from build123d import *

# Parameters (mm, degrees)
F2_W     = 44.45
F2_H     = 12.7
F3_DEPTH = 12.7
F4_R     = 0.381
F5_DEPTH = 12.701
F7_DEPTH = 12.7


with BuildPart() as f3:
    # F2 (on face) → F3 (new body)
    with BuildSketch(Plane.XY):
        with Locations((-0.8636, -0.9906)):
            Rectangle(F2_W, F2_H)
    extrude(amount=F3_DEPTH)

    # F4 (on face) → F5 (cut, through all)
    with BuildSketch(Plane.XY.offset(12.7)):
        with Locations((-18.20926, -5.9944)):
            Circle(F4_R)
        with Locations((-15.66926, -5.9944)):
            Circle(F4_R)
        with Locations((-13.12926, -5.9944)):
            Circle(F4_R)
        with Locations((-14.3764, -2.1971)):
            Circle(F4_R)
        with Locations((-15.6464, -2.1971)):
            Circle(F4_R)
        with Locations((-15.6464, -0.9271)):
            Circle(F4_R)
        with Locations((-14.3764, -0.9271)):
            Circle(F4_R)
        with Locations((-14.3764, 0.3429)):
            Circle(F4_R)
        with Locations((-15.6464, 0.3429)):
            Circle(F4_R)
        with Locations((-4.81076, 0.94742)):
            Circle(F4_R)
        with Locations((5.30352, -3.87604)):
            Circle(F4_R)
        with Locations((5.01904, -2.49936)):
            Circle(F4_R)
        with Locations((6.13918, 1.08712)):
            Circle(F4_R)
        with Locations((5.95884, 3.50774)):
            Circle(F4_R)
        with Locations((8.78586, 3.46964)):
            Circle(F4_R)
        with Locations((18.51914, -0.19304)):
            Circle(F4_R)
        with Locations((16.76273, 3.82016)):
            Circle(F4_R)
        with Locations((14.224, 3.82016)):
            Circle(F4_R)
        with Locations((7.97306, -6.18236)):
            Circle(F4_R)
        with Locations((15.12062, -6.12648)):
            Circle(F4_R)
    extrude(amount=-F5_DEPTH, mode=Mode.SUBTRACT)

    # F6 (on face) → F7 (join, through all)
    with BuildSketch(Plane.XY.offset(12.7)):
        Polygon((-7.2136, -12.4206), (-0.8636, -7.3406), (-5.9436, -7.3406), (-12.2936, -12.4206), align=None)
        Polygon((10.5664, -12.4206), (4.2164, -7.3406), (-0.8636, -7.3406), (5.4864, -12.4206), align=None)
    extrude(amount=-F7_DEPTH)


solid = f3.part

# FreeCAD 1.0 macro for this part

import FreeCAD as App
import Part
import Sketcher
from FreeCAD import Vector
Q = App.Units.Quantity


def add_polygon(sketch, points):
    """Adds a closed chain of lines whose ends are joined by coincident constraints."""
    first, n = sketch.GeometryCount, len(points)
    for a, b in zip(points, points[1:] + points[:1]):
        sketch.addGeometry(Part.LineSegment(App.Vector(*a, 0), App.Vector(*b, 0)), False)
    for i in range(n):
        sketch.addConstraint(Sketcher.Constraint("Coincident", first + i, 2, first + (i + 1) % n, 1))

doc = App.newDocument("Part")
body = doc.addObject("PartDesign::Body", "Body")

# Sketch on XY plane
sketch1 = body.newObject("Sketcher::SketchObject", "Sketch")
sketch1.AttachmentSupport = (doc.getObject("XY_Plane"), [""])
sketch1.MapMode = "FlatFace"
add_polygon(sketch1, [(-23, 5), (-23, -7), (21, -7), (21, 5)])  # lines 0-3
sketch1.addConstraint(Sketcher.Constraint("Vertical", 0))
sketch1.addConstraint(Sketcher.Constraint("Horizontal", 1))
sketch1.addConstraint(Sketcher.Constraint("Vertical", 2))
sketch1.addConstraint(Sketcher.Constraint("Horizontal", 3))
sketch1.addConstraint(Sketcher.Constraint("DistanceY", 0, 2, 0, 1, Q("0.5 in")))
sketch1.addConstraint(Sketcher.Constraint("DistanceX", 1, 1, 1, 2, Q("1.75 in")))
sketch1.addConstraint(Sketcher.Constraint("DistanceX", 0, 2, -1, 1, Q("0.909 in")))
sketch1.addConstraint(Sketcher.Constraint("DistanceY", 0, 2, -1, 1, Q("0.289 in")))
pad1 = body.newObject("PartDesign::Pad", "Pad")
pad1.Profile = sketch1
pad1.Length = Q("0.5 in")

# Sketch on XY plane
sketch2 = body.newObject("Sketcher::SketchObject", "Sketch001")
sketch2.AttachmentSupport = (doc.getObject("XY_Plane"), [""])
sketch2.MapMode = "FlatFace"
sketch2.AttachmentOffset = App.Placement(Vector(0, 0, 0.5 * 25.4), App.Rotation())
sketch2.addGeometry(Part.Circle(Vector(-18.21, -5.99, 0), Vector(0, 0, 1), 0.38), False)
sketch2.addGeometry(Part.Circle(Vector(-15.67, -5.99, 0), Vector(0, 0, 1), 0.38), False)
sketch2.addGeometry(Part.Circle(Vector(-13.13, -5.99, 0), Vector(0, 0, 1), 0.38), False)
sketch2.addGeometry(Part.Circle(Vector(-14.38, -2.2, 0), Vector(0, 0, 1), 0.38), False)
sketch2.addGeometry(Part.Circle(Vector(-15.65, -2.2, 0), Vector(0, 0, 1), 0.38), False)
sketch2.addGeometry(Part.Circle(Vector(-15.65, -0.93, 0), Vector(0, 0, 1), 0.38), False)
sketch2.addGeometry(Part.Circle(Vector(-14.38, -0.93, 0), Vector(0, 0, 1), 0.38), False)
sketch2.addGeometry(Part.Circle(Vector(-14.38, 0.34, 0), Vector(0, 0, 1), 0.38), False)
sketch2.addGeometry(Part.Circle(Vector(-15.65, 0.34, 0), Vector(0, 0, 1), 0.38), False)
sketch2.addGeometry(Part.Circle(Vector(-4.81, 0.95, 0), Vector(0, 0, 1), 0.38), False)
sketch2.addGeometry(Part.Circle(Vector(5.3, -3.88, 0), Vector(0, 0, 1), 0.38), False)
sketch2.addGeometry(Part.Circle(Vector(5.02, -2.5, 0), Vector(0, 0, 1), 0.38), False)
sketch2.addGeometry(Part.Circle(Vector(6.14, 1.09, 0), Vector(0, 0, 1), 0.38), False)
sketch2.addGeometry(Part.Circle(Vector(5.96, 3.51, 0), Vector(0, 0, 1), 0.38), False)
sketch2.addGeometry(Part.Circle(Vector(8.79, 3.47, 0), Vector(0, 0, 1), 0.38), False)
sketch2.addGeometry(Part.Circle(Vector(18.52, -0.19, 0), Vector(0, 0, 1), 0.38), False)
sketch2.addGeometry(Part.Circle(Vector(16.76, 3.82, 0), Vector(0, 0, 1), 0.38), False)
sketch2.addGeometry(Part.Circle(Vector(14.22, 3.82, 0), Vector(0, 0, 1), 0.38), False)
sketch2.addGeometry(Part.Circle(Vector(7.97, -6.18, 0), Vector(0, 0, 1), 0.38), False)
sketch2.addGeometry(Part.Circle(Vector(15.12, -6.13, 0), Vector(0, 0, 1), 0.38), False)
sketch2.addConstraint(Sketcher.Constraint("Equal", 0, 1))
sketch2.addConstraint(Sketcher.Constraint("Equal", 1, 2))
sketch2.addConstraint(Sketcher.Constraint("Equal", 2, 3))
sketch2.addConstraint(Sketcher.Constraint("Equal", 3, 4))
sketch2.addConstraint(Sketcher.Constraint("Equal", 4, 5))
sketch2.addConstraint(Sketcher.Constraint("Equal", 5, 6))
sketch2.addConstraint(Sketcher.Constraint("Equal", 6, 7))
sketch2.addConstraint(Sketcher.Constraint("Equal", 7, 8))
sketch2.addConstraint(Sketcher.Constraint("Equal", 8, 9))
sketch2.addConstraint(Sketcher.Constraint("Equal", 9, 10))
sketch2.addConstraint(Sketcher.Constraint("Equal", 10, 11))
sketch2.addConstraint(Sketcher.Constraint("Equal", 11, 12))
sketch2.addConstraint(Sketcher.Constraint("Equal", 12, 13))
sketch2.addConstraint(Sketcher.Constraint("Equal", 13, 14))
sketch2.addConstraint(Sketcher.Constraint("Equal", 14, 15))
sketch2.addConstraint(Sketcher.Constraint("Equal", 15, 16))
sketch2.addConstraint(Sketcher.Constraint("Equal", 16, 17))
sketch2.addConstraint(Sketcher.Constraint("Equal", 17, 18))
sketch2.addConstraint(Sketcher.Constraint("Equal", 18, 19))
sketch2.addConstraint(Sketcher.Constraint("Horizontal", 0, 3, 1, 3))
sketch2.addConstraint(Sketcher.Constraint("Horizontal", 1, 3, 2, 3))
sketch2.addConstraint(Sketcher.Constraint("Horizontal", 3, 3, 4, 3))
sketch2.addConstraint(Sketcher.Constraint("Horizontal", 5, 3, 6, 3))
sketch2.addConstraint(Sketcher.Constraint("Horizontal", 7, 3, 8, 3))
sketch2.addConstraint(Sketcher.Constraint("Horizontal", 16, 3, 17, 3))
sketch2.addConstraint(Sketcher.Constraint("Vertical", 4, 3, 5, 3))
sketch2.addConstraint(Sketcher.Constraint("Vertical", 3, 3, 6, 3))
sketch2.addConstraint(Sketcher.Constraint("Vertical", 6, 3, 7, 3))
sketch2.addConstraint(Sketcher.Constraint("Vertical", 5, 3, 8, 3))
sketch2.addConstraint(Sketcher.Constraint("Diameter", 0, Q("0.03 in")))
sketch2.addConstraint(Sketcher.Constraint("DistanceX", 0, 3, 1, 3, Q("0.1 in")))
sketch2.addConstraint(Sketcher.Constraint("DistanceX", 1, 3, 2, 3, Q("0.1 in")))
sketch2.addConstraint(Sketcher.Constraint("DistanceY", 3, 3, 7, 3, Q("0.1 in")))
sketch2.addConstraint(Sketcher.Constraint("DistanceX", -1, 1, 17, 3, Q("0.56 in")))
sketch2.addConstraint(Sketcher.Constraint("DistanceX", 4, 3, 3, 3, Q("0.05 in")))
sketch2.addConstraint(Sketcher.Constraint("DistanceY", 4, 3, 5, 3, Q("0.05 in")))
sketch2.addConstraint(Sketcher.Constraint("DistanceY", 18, 3, 14, 3, Q("0.38 in")))
sketch2.addConstraint(Sketcher.Constraint("DistanceY", 0, 3, -1, 1, Q("0.236 in")))
sketch2.addConstraint(Sketcher.Constraint("DistanceX", 3, 3, -1, 1, Q("0.566 in")))
sketch2.addConstraint(Sketcher.Constraint("DistanceX", 9, 3, 11, 3, Q("0.387 in")))
sketch2.addConstraint(Sketcher.Constraint("DistanceX", 11, 3, 13, 3, Q("0.037 in")))
sketch2.addConstraint(Sketcher.Constraint("DistanceY", 11, 3, 14, 3, Q("0.235 in")))
sketch2.addConstraint(Sketcher.Constraint("DistanceY", 10, 3, 15, 3, Q("0.145 in")))
sketch2.addConstraint(Sketcher.Constraint("DistanceY", 15, 3, 16, 3, Q("0.158 in")))
sketch2.addConstraint(Sketcher.Constraint("DistanceX", 18, 3, 14, 3, Q("0.032 in")))
sketch2.addConstraint(Sketcher.Constraint("DistanceX", 0, 3, -1, 1, Q("0.7169 in")))
sketch2.addConstraint(Sketcher.Constraint("DistanceY", 3, 3, -1, 1, Q("0.0865 in")))
sketch2.addConstraint(Sketcher.Constraint("DistanceX", 9, 3, -1, 1, Q("0.1894 in")))
sketch2.addConstraint(Sketcher.Constraint("DistanceY", -1, 1, 9, 3, Q("0.0373 in")))
sketch2.addConstraint(Sketcher.Constraint("DistanceX", -1, 1, 10, 3, Q("0.2088 in")))
sketch2.addConstraint(Sketcher.Constraint("DistanceY", 10, 3, -1, 1, Q("0.1526 in")))
sketch2.addConstraint(Sketcher.Constraint("DistanceY", 11, 3, -1, 1, Q("0.0984 in")))
sketch2.addConstraint(Sketcher.Constraint("DistanceX", -1, 1, 12, 3, Q("0.2417 in")))
sketch2.addConstraint(Sketcher.Constraint("DistanceY", -1, 1, 12, 3, Q("0.0428 in")))
sketch2.addConstraint(Sketcher.Constraint("DistanceY", -1, 1, 13, 3, Q("0.1381 in")))
sketch2.addConstraint(Sketcher.Constraint("DistanceX", -1, 1, 14, 3, Q("0.3459 in")))
sketch2.addConstraint(Sketcher.Constraint("DistanceX", -1, 1, 15, 3, Q("0.7291 in")))
sketch2.addConstraint(Sketcher.Constraint("DistanceX", -1, 1, 19, 3, Q("0.5953 in")))
sketch2.addConstraint(Sketcher.Constraint("DistanceY", 19, 3, -1, 1, Q("0.2412 in")))
sketch2.addConstraint(Sketcher.Constraint("DistanceX", -1, 1, 16, 3, Q("16.76273 mm")))
pocket1 = body.newObject("PartDesign::Pocket", "Pocket")
pocket1.Profile = sketch2
pocket1.Type = "ThroughAll"

# Sketch on XY plane
sketch3 = body.newObject("Sketcher::SketchObject", "Sketch002")
sketch3.AttachmentSupport = (doc.getObject("XY_Plane"), [""])
sketch3.MapMode = "FlatFace"
sketch3.AttachmentOffset = App.Placement(Vector(0, 0, 0.5 * 25.4), App.Rotation())
add_polygon(sketch3, [(-7, -12), (-1, -7), (-6, -7), (-12, -12)])  # lines 0-3
add_polygon(sketch3, [(11, -12), (4, -7), (-1, -7), (5, -12)])  # lines 4-7
sketch3.addConstraint(Sketcher.Constraint("Horizontal", 1))
sketch3.addConstraint(Sketcher.Constraint("Horizontal", 3))
sketch3.addConstraint(Sketcher.Constraint("Horizontal", 5))
sketch3.addConstraint(Sketcher.Constraint("Horizontal", 7))
sketch3.addConstraint(Sketcher.Constraint("Coincident", 5, 2, 0, 2))
sketch3.addConstraint(Sketcher.Constraint("Parallel", 0, 2))
sketch3.addConstraint(Sketcher.Constraint("Parallel", 4, 6))
sketch3.addConstraint(Sketcher.Constraint("Horizontal", 3, 2, 6, 2))
sketch3.addConstraint(Sketcher.Constraint("Equal", 3, 5))
sketch3.addConstraint(Sketcher.Constraint("Equal", 2, 4))
sketch3.addConstraint(Sketcher.Constraint("DistanceX", 1, 2, 1, 1, Q("0.2 in")))
sketch3.addConstraint(Sketcher.Constraint("DistanceY", 2, 2, 1, 2, Q("0.2 in")))
sketch3.addConstraint(Sketcher.Constraint("DistanceX", 3, 2, 6, 2, Q("0.5 in")))
sketch3.addConstraint(Sketcher.Constraint("DistanceX", 0, 2, -1, 1, Q("0.034 in")))
sketch3.addConstraint(Sketcher.Constraint("DistanceY", 0, 2, -1, 1, Q("0.289 in")))
pad2 = body.newObject("PartDesign::Pad", "Pad001")
pad2.Profile = sketch3
pad2.Length = Q("0.5 in")
pad2.Reversed = True

doc.recompute()
